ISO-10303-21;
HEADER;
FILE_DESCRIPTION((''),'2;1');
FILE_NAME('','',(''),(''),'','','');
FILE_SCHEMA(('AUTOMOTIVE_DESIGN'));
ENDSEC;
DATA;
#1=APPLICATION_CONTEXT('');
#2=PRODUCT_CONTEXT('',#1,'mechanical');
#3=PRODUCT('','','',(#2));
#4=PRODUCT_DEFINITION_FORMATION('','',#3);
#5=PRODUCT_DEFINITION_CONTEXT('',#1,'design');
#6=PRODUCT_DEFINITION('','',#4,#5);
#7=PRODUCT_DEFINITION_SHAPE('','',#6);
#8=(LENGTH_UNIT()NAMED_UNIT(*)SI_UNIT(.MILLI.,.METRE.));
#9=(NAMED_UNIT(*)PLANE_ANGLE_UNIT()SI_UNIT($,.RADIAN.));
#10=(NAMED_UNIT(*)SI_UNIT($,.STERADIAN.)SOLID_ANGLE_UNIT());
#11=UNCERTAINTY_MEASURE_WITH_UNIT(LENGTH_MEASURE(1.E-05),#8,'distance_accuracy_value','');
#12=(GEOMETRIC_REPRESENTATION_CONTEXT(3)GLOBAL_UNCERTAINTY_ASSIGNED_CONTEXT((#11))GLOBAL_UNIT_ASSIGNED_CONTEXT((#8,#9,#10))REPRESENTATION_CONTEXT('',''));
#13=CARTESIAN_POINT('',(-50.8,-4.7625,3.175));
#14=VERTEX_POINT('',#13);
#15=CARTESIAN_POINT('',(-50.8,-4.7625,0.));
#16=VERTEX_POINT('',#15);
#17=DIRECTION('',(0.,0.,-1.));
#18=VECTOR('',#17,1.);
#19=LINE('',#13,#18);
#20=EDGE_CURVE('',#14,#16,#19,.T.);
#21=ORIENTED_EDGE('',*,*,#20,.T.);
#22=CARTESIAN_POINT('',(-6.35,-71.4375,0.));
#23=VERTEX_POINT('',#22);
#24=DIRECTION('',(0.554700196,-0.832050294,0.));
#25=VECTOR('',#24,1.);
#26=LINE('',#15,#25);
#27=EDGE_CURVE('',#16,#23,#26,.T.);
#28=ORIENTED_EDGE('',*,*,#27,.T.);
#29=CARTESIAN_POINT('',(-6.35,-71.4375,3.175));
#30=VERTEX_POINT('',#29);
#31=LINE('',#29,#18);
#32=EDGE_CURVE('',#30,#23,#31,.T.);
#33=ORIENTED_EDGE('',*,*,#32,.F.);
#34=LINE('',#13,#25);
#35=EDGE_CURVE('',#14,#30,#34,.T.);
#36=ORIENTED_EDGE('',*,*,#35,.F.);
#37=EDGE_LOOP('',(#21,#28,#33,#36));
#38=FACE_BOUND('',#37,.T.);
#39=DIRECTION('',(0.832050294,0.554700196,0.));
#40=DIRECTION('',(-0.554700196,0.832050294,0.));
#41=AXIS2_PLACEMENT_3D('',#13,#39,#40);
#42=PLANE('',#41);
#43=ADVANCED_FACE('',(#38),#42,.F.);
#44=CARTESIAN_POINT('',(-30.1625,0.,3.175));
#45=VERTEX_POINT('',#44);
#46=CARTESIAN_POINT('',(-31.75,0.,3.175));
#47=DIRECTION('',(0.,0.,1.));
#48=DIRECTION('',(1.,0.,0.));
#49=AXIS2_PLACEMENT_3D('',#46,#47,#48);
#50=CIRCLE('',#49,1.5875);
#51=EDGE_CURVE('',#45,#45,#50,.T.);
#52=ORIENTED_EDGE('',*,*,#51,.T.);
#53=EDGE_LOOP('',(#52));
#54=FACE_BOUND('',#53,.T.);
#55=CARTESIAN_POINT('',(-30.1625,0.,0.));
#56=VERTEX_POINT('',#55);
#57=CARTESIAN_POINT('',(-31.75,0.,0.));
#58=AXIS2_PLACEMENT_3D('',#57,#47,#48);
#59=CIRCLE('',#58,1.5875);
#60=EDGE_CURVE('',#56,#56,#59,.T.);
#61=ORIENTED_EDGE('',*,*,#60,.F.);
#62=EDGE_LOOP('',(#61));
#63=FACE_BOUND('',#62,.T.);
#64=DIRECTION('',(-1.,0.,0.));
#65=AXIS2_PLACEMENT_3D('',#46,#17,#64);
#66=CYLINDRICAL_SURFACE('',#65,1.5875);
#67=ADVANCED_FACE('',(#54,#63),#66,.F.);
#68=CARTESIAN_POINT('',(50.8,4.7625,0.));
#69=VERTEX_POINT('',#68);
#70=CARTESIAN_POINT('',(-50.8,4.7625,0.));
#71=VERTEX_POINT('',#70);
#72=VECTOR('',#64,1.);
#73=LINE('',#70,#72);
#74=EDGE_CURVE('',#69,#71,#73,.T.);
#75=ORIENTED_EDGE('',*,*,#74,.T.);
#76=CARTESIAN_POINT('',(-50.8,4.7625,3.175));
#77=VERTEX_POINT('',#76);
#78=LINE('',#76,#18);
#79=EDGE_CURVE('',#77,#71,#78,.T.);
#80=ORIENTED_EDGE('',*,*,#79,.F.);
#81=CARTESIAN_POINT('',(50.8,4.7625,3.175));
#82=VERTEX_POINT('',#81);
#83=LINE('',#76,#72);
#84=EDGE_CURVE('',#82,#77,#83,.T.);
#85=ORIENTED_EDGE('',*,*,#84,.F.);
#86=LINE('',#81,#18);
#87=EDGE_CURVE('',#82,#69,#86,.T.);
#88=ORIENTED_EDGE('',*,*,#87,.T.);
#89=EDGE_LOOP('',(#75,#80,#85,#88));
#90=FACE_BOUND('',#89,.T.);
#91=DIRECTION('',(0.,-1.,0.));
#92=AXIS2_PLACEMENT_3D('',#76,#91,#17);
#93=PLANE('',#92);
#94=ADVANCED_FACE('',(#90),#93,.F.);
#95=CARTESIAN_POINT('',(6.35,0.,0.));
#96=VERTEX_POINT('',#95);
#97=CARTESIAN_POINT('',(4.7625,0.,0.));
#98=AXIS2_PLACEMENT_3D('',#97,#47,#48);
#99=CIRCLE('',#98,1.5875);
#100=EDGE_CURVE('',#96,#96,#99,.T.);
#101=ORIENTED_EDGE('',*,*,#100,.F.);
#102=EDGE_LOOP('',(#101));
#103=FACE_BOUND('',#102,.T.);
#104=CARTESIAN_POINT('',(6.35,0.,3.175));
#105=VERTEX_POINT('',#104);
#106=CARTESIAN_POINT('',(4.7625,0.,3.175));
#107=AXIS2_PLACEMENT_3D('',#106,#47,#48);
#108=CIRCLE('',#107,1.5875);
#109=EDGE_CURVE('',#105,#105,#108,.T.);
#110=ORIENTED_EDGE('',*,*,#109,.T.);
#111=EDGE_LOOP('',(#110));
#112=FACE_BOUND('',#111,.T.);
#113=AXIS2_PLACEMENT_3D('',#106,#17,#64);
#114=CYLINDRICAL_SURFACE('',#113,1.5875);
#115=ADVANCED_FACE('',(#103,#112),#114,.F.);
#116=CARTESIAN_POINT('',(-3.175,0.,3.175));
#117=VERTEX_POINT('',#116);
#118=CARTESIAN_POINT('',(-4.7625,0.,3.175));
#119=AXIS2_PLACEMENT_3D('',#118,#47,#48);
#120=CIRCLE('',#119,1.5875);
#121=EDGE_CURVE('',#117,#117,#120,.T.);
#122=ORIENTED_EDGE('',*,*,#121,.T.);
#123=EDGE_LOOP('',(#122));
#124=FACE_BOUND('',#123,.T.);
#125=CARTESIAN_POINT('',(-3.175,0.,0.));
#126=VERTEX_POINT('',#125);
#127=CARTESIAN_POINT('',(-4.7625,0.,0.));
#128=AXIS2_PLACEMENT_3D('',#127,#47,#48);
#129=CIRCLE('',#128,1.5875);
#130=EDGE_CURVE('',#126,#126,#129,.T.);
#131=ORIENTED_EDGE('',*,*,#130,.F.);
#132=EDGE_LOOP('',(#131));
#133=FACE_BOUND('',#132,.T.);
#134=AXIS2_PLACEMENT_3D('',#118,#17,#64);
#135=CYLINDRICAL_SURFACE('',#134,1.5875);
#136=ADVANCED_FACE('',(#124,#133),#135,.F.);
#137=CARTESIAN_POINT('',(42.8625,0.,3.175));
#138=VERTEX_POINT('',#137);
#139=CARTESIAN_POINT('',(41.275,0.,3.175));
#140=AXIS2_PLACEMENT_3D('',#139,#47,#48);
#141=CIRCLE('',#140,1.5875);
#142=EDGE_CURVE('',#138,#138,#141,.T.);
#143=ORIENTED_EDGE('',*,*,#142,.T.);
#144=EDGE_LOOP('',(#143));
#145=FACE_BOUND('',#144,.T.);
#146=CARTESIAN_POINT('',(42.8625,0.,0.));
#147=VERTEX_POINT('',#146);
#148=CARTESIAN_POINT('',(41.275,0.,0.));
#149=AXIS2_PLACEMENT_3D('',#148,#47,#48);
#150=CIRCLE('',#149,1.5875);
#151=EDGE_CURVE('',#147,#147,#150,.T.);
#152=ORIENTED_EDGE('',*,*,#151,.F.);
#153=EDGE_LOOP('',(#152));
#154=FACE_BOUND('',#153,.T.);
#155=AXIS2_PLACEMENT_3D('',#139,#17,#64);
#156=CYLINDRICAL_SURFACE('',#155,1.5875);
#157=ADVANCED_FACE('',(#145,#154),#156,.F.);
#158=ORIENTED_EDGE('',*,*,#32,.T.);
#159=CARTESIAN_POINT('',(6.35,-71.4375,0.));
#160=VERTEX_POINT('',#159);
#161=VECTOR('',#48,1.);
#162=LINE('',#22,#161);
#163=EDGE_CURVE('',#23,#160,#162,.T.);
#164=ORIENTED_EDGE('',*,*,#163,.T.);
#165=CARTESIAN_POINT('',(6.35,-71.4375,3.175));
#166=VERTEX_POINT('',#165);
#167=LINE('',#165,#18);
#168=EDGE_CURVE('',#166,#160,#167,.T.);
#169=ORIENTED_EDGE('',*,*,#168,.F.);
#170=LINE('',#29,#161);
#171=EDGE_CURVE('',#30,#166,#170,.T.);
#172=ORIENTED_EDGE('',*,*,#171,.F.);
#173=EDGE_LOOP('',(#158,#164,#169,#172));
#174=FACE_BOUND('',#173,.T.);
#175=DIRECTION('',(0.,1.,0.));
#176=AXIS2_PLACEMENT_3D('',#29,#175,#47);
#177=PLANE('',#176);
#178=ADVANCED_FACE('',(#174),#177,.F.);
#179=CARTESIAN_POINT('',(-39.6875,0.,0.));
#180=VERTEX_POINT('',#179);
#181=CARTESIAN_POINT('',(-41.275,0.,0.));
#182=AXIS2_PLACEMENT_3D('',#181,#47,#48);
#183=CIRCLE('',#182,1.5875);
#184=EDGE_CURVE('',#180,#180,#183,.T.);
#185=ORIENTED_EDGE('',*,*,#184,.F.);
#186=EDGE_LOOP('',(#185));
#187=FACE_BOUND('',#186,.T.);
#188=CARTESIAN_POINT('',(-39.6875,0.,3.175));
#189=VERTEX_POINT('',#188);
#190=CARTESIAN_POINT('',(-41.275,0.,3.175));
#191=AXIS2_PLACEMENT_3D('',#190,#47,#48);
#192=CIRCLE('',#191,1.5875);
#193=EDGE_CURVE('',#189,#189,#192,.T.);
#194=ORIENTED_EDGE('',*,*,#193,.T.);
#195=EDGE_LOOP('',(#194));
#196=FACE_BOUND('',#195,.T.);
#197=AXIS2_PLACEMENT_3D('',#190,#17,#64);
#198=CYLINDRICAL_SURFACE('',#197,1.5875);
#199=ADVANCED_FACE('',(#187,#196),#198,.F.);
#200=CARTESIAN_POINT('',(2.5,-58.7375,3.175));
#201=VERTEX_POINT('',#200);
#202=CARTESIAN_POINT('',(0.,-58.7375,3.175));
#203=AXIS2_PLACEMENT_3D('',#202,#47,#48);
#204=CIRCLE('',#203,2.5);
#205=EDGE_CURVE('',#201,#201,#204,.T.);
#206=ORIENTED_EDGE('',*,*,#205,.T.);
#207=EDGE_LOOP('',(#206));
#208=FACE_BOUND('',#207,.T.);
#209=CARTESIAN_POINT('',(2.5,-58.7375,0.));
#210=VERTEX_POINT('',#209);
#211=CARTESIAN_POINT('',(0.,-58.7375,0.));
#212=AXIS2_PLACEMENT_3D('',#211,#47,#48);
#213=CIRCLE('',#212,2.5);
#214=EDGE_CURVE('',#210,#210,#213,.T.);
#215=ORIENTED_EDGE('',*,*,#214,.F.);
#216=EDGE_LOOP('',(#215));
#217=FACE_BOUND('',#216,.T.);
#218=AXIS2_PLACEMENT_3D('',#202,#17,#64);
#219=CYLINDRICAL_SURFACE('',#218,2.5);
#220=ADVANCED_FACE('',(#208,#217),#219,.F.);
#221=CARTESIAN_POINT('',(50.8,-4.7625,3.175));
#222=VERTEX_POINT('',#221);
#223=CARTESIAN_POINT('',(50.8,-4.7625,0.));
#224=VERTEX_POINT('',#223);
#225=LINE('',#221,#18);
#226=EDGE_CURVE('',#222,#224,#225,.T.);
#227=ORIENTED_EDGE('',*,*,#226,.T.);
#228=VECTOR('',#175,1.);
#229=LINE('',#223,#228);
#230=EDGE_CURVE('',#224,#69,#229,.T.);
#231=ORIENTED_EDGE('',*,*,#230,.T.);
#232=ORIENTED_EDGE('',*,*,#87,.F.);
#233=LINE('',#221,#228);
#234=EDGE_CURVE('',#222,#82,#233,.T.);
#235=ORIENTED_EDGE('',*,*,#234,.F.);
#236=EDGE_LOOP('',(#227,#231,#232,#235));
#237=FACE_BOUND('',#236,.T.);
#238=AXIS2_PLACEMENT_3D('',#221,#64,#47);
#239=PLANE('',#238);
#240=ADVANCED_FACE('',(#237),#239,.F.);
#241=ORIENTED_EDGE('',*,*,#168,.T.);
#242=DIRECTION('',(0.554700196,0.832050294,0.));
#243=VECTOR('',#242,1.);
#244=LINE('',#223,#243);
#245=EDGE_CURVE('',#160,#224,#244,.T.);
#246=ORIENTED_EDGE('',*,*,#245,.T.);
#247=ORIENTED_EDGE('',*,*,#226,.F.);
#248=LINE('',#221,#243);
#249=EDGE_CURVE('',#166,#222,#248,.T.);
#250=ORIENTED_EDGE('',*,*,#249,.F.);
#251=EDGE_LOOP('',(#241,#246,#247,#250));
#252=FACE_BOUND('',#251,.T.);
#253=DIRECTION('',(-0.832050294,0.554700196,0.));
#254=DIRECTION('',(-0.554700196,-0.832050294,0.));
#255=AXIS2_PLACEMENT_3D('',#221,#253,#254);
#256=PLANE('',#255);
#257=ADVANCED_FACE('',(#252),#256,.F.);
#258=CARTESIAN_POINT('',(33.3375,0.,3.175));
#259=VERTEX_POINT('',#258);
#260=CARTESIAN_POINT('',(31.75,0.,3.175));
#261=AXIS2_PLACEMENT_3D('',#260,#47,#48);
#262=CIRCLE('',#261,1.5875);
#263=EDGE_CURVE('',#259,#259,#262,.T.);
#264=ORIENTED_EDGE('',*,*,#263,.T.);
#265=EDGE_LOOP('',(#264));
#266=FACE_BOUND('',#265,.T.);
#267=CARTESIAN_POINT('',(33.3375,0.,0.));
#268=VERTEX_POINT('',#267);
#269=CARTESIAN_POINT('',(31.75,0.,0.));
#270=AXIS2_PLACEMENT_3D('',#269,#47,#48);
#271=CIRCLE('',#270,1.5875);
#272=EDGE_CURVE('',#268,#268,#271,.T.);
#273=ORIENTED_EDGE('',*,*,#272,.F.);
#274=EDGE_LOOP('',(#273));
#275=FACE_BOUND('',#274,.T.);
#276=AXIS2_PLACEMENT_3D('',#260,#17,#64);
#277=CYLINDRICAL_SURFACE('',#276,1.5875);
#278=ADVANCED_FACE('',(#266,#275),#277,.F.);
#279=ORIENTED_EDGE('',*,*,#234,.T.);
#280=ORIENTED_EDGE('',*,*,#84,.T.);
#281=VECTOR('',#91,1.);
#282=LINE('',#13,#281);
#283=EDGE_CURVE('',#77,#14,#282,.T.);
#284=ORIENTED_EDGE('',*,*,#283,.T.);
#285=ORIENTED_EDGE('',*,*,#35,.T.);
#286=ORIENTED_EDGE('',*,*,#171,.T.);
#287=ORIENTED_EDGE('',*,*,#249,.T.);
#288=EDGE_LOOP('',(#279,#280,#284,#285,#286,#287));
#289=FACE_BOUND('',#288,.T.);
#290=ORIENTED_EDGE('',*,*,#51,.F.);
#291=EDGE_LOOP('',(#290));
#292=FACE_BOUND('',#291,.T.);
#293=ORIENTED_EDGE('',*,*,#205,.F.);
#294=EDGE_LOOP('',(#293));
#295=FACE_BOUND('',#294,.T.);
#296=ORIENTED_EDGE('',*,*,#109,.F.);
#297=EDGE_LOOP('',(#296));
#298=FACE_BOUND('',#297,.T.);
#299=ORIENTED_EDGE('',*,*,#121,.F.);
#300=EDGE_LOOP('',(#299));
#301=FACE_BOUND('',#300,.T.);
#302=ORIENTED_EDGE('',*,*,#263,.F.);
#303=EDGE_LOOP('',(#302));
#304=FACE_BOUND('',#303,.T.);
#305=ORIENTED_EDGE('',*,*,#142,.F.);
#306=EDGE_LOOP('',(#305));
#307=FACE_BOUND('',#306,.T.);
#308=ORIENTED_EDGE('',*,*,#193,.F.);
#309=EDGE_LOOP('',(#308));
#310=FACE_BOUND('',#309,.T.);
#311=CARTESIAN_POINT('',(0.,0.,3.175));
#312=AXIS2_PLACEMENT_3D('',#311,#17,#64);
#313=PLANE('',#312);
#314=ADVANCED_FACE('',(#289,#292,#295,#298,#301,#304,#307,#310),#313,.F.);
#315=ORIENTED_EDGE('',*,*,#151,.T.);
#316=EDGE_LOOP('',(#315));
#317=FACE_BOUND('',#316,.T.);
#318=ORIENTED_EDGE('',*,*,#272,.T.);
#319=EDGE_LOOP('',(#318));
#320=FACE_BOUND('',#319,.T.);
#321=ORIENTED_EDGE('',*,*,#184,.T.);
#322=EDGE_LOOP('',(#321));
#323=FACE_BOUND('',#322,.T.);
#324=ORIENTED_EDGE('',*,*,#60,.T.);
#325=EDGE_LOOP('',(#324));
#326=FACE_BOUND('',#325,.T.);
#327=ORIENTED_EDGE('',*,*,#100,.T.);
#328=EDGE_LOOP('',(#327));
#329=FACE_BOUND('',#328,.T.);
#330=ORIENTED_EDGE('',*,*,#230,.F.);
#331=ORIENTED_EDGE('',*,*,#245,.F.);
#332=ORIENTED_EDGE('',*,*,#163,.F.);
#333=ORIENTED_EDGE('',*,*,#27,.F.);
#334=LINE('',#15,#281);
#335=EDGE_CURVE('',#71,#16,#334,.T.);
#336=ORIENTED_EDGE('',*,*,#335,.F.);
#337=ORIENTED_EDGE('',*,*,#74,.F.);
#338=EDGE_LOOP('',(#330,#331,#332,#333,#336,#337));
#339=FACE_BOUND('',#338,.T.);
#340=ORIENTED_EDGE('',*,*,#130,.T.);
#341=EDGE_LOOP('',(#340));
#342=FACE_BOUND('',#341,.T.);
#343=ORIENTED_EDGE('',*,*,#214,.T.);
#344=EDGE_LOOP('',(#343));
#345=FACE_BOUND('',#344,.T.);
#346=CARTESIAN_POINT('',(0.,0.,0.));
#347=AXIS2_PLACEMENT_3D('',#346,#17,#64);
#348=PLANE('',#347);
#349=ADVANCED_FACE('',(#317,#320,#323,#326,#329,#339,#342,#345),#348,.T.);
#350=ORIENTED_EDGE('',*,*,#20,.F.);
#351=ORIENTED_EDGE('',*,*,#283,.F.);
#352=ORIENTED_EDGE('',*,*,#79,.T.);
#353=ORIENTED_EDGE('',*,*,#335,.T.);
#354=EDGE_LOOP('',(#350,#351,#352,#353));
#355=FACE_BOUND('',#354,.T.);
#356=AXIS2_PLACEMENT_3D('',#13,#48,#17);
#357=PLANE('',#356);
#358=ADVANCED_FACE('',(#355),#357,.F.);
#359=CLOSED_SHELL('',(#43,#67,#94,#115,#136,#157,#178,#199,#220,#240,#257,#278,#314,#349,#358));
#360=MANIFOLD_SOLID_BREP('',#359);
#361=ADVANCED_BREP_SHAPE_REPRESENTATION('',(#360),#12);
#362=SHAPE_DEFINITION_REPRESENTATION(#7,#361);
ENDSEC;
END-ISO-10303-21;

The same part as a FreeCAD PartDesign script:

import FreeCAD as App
import Part
import Sketcher
Q = App.Units.Quantity

doc = App.newDocument("Part")
body = doc.addObject("PartDesign::Body", "Body")

# Sketch on XY plane
sketch1 = doc.addObject("Sketcher::SketchObject", "Sketch")
body.addObject(sketch1)
sketch1.AttachmentSupport = (doc.XY_Plane, [""])
sketch1.MapMode = "FlatFace"
sketch1.addGeometry([
    Part.LineSegment(App.Vector(-50.8, 4.7625, 0), App.Vector(-50.8, -4.7625, 0)),  # 0
    Part.LineSegment(App.Vector(-50.8, -4.7625, 0), App.Vector(-6.35, -71.4375, 0)),  # 1
    Part.LineSegment(App.Vector(-6.35, -71.4375, 0), App.Vector(6.35, -71.4375, 0)),  # 2
    Part.LineSegment(App.Vector(6.35, -71.4375, 0), App.Vector(50.8, -4.7625, 0)),  # 3
    Part.LineSegment(App.Vector(50.8, -4.7625, 0), App.Vector(50.8, 4.7625, 0)),  # 4
    Part.LineSegment(App.Vector(50.8, 4.7625, 0), App.Vector(-50.8, 4.7625, 0)),  # 5
    Part.Circle(App.Vector(0, -58.7375, 0), App.Vector(0, 0, 1), 2.5),  # 6
    Part.Circle(App.Vector(41.275, 0, 0), App.Vector(0, 0, 1), 1.5875),  # 7
    Part.Circle(App.Vector(31.75, 0, 0), App.Vector(0, 0, 1), 1.5875),  # 8
    Part.Circle(App.Vector(4.7625, 0, 0), App.Vector(0, 0, 1), 1.5875),  # 9
    Part.Circle(App.Vector(-4.7625, 0, 0), App.Vector(0, 0, 1), 1.5875),  # 10
    Part.Circle(App.Vector(-31.75, 0, 0), App.Vector(0, 0, 1), 1.5875),  # 11
    Part.Circle(App.Vector(-41.275, 0, 0), App.Vector(0, 0, 1), 1.5875),  # 12
], False)
sketch1.addConstraint([
    Sketcher.Constraint("Coincident", 0, 2, 1, 1),
    Sketcher.Constraint("Coincident", 1, 2, 2, 1),
    Sketcher.Constraint("Coincident", 2, 2, 3, 1),
    Sketcher.Constraint("Coincident", 3, 2, 4, 1),
    Sketcher.Constraint("Coincident", 4, 2, 5, 1),
    Sketcher.Constraint("Coincident", 5, 2, 0, 1),
    Sketcher.Constraint("Vertical", 0),
    Sketcher.Constraint("Horizontal", 2),
    Sketcher.Constraint("Vertical", 4),
    Sketcher.Constraint("Horizontal", 5),
    Sketcher.Constraint("Equal", 7, 8),
    Sketcher.Constraint("Equal", 8, 9),
    Sketcher.Constraint("Equal", 9, 10),
    Sketcher.Constraint("Equal", 10, 11),
    Sketcher.Constraint("Equal", 11, 12),
    Sketcher.Constraint("Symmetric", 9, 3, 10, 3, -1, 1),
    Sketcher.Constraint("Symmetric", 8, 3, 11, 3, -1, 1),
    Sketcher.Constraint("Symmetric", 7, 3, 12, 3, -1, 1),
    Sketcher.Constraint("Symmetric", 0, 2, 4, 2, -1, 1),
    Sketcher.Constraint("PointOnObject", 6, 3, -2),
    Sketcher.Constraint("PointOnObject", 7, 3, -1),
    Sketcher.Constraint("PointOnObject", 8, 3, -1),
    Sketcher.Constraint("PointOnObject", 9, 3, -1),
    Sketcher.Constraint("Horizontal", 0, 2, 3, 2),
    Sketcher.Constraint("Equal", 1, 3),
    Sketcher.Constraint("DistanceX", 5, 2, 5, 1, Q("4 in")),
    Sketcher.Constraint("Diameter", 7, Q("0.125 in")),
    Sketcher.Constraint("DistanceX", 2, 1, 2, 2, Q("0.5 in")),
    Sketcher.Constraint("DistanceX", 11, 3, 1, 2, Q("1 in")),
    Sketcher.Constraint("DistanceY", 1, 2, 6, 3, Q("0.5 in")),
    Sketcher.Constraint("Diameter", 6, Q("5 mm")),
    Sketcher.Constraint("DistanceY", 0, 2, 0, 1, Q("0.375 in")),
    Sketcher.Constraint("DistanceY", 6, 3, -1, 1, Q("2.3125 in")),
    Sketcher.Constraint("DistanceX", -1, 1, 7, 3, Q("1.625 in")),
    Sketcher.Constraint("DistanceX", -1, 1, 9, 3, Q("0.1875 in")),
])
pad1 = doc.addObject("PartDesign::Pad", "Pad")
body.addObject(pad1)
pad1.Profile = sketch1
pad1.Length = Q("0.125 in")

doc.recompute()
